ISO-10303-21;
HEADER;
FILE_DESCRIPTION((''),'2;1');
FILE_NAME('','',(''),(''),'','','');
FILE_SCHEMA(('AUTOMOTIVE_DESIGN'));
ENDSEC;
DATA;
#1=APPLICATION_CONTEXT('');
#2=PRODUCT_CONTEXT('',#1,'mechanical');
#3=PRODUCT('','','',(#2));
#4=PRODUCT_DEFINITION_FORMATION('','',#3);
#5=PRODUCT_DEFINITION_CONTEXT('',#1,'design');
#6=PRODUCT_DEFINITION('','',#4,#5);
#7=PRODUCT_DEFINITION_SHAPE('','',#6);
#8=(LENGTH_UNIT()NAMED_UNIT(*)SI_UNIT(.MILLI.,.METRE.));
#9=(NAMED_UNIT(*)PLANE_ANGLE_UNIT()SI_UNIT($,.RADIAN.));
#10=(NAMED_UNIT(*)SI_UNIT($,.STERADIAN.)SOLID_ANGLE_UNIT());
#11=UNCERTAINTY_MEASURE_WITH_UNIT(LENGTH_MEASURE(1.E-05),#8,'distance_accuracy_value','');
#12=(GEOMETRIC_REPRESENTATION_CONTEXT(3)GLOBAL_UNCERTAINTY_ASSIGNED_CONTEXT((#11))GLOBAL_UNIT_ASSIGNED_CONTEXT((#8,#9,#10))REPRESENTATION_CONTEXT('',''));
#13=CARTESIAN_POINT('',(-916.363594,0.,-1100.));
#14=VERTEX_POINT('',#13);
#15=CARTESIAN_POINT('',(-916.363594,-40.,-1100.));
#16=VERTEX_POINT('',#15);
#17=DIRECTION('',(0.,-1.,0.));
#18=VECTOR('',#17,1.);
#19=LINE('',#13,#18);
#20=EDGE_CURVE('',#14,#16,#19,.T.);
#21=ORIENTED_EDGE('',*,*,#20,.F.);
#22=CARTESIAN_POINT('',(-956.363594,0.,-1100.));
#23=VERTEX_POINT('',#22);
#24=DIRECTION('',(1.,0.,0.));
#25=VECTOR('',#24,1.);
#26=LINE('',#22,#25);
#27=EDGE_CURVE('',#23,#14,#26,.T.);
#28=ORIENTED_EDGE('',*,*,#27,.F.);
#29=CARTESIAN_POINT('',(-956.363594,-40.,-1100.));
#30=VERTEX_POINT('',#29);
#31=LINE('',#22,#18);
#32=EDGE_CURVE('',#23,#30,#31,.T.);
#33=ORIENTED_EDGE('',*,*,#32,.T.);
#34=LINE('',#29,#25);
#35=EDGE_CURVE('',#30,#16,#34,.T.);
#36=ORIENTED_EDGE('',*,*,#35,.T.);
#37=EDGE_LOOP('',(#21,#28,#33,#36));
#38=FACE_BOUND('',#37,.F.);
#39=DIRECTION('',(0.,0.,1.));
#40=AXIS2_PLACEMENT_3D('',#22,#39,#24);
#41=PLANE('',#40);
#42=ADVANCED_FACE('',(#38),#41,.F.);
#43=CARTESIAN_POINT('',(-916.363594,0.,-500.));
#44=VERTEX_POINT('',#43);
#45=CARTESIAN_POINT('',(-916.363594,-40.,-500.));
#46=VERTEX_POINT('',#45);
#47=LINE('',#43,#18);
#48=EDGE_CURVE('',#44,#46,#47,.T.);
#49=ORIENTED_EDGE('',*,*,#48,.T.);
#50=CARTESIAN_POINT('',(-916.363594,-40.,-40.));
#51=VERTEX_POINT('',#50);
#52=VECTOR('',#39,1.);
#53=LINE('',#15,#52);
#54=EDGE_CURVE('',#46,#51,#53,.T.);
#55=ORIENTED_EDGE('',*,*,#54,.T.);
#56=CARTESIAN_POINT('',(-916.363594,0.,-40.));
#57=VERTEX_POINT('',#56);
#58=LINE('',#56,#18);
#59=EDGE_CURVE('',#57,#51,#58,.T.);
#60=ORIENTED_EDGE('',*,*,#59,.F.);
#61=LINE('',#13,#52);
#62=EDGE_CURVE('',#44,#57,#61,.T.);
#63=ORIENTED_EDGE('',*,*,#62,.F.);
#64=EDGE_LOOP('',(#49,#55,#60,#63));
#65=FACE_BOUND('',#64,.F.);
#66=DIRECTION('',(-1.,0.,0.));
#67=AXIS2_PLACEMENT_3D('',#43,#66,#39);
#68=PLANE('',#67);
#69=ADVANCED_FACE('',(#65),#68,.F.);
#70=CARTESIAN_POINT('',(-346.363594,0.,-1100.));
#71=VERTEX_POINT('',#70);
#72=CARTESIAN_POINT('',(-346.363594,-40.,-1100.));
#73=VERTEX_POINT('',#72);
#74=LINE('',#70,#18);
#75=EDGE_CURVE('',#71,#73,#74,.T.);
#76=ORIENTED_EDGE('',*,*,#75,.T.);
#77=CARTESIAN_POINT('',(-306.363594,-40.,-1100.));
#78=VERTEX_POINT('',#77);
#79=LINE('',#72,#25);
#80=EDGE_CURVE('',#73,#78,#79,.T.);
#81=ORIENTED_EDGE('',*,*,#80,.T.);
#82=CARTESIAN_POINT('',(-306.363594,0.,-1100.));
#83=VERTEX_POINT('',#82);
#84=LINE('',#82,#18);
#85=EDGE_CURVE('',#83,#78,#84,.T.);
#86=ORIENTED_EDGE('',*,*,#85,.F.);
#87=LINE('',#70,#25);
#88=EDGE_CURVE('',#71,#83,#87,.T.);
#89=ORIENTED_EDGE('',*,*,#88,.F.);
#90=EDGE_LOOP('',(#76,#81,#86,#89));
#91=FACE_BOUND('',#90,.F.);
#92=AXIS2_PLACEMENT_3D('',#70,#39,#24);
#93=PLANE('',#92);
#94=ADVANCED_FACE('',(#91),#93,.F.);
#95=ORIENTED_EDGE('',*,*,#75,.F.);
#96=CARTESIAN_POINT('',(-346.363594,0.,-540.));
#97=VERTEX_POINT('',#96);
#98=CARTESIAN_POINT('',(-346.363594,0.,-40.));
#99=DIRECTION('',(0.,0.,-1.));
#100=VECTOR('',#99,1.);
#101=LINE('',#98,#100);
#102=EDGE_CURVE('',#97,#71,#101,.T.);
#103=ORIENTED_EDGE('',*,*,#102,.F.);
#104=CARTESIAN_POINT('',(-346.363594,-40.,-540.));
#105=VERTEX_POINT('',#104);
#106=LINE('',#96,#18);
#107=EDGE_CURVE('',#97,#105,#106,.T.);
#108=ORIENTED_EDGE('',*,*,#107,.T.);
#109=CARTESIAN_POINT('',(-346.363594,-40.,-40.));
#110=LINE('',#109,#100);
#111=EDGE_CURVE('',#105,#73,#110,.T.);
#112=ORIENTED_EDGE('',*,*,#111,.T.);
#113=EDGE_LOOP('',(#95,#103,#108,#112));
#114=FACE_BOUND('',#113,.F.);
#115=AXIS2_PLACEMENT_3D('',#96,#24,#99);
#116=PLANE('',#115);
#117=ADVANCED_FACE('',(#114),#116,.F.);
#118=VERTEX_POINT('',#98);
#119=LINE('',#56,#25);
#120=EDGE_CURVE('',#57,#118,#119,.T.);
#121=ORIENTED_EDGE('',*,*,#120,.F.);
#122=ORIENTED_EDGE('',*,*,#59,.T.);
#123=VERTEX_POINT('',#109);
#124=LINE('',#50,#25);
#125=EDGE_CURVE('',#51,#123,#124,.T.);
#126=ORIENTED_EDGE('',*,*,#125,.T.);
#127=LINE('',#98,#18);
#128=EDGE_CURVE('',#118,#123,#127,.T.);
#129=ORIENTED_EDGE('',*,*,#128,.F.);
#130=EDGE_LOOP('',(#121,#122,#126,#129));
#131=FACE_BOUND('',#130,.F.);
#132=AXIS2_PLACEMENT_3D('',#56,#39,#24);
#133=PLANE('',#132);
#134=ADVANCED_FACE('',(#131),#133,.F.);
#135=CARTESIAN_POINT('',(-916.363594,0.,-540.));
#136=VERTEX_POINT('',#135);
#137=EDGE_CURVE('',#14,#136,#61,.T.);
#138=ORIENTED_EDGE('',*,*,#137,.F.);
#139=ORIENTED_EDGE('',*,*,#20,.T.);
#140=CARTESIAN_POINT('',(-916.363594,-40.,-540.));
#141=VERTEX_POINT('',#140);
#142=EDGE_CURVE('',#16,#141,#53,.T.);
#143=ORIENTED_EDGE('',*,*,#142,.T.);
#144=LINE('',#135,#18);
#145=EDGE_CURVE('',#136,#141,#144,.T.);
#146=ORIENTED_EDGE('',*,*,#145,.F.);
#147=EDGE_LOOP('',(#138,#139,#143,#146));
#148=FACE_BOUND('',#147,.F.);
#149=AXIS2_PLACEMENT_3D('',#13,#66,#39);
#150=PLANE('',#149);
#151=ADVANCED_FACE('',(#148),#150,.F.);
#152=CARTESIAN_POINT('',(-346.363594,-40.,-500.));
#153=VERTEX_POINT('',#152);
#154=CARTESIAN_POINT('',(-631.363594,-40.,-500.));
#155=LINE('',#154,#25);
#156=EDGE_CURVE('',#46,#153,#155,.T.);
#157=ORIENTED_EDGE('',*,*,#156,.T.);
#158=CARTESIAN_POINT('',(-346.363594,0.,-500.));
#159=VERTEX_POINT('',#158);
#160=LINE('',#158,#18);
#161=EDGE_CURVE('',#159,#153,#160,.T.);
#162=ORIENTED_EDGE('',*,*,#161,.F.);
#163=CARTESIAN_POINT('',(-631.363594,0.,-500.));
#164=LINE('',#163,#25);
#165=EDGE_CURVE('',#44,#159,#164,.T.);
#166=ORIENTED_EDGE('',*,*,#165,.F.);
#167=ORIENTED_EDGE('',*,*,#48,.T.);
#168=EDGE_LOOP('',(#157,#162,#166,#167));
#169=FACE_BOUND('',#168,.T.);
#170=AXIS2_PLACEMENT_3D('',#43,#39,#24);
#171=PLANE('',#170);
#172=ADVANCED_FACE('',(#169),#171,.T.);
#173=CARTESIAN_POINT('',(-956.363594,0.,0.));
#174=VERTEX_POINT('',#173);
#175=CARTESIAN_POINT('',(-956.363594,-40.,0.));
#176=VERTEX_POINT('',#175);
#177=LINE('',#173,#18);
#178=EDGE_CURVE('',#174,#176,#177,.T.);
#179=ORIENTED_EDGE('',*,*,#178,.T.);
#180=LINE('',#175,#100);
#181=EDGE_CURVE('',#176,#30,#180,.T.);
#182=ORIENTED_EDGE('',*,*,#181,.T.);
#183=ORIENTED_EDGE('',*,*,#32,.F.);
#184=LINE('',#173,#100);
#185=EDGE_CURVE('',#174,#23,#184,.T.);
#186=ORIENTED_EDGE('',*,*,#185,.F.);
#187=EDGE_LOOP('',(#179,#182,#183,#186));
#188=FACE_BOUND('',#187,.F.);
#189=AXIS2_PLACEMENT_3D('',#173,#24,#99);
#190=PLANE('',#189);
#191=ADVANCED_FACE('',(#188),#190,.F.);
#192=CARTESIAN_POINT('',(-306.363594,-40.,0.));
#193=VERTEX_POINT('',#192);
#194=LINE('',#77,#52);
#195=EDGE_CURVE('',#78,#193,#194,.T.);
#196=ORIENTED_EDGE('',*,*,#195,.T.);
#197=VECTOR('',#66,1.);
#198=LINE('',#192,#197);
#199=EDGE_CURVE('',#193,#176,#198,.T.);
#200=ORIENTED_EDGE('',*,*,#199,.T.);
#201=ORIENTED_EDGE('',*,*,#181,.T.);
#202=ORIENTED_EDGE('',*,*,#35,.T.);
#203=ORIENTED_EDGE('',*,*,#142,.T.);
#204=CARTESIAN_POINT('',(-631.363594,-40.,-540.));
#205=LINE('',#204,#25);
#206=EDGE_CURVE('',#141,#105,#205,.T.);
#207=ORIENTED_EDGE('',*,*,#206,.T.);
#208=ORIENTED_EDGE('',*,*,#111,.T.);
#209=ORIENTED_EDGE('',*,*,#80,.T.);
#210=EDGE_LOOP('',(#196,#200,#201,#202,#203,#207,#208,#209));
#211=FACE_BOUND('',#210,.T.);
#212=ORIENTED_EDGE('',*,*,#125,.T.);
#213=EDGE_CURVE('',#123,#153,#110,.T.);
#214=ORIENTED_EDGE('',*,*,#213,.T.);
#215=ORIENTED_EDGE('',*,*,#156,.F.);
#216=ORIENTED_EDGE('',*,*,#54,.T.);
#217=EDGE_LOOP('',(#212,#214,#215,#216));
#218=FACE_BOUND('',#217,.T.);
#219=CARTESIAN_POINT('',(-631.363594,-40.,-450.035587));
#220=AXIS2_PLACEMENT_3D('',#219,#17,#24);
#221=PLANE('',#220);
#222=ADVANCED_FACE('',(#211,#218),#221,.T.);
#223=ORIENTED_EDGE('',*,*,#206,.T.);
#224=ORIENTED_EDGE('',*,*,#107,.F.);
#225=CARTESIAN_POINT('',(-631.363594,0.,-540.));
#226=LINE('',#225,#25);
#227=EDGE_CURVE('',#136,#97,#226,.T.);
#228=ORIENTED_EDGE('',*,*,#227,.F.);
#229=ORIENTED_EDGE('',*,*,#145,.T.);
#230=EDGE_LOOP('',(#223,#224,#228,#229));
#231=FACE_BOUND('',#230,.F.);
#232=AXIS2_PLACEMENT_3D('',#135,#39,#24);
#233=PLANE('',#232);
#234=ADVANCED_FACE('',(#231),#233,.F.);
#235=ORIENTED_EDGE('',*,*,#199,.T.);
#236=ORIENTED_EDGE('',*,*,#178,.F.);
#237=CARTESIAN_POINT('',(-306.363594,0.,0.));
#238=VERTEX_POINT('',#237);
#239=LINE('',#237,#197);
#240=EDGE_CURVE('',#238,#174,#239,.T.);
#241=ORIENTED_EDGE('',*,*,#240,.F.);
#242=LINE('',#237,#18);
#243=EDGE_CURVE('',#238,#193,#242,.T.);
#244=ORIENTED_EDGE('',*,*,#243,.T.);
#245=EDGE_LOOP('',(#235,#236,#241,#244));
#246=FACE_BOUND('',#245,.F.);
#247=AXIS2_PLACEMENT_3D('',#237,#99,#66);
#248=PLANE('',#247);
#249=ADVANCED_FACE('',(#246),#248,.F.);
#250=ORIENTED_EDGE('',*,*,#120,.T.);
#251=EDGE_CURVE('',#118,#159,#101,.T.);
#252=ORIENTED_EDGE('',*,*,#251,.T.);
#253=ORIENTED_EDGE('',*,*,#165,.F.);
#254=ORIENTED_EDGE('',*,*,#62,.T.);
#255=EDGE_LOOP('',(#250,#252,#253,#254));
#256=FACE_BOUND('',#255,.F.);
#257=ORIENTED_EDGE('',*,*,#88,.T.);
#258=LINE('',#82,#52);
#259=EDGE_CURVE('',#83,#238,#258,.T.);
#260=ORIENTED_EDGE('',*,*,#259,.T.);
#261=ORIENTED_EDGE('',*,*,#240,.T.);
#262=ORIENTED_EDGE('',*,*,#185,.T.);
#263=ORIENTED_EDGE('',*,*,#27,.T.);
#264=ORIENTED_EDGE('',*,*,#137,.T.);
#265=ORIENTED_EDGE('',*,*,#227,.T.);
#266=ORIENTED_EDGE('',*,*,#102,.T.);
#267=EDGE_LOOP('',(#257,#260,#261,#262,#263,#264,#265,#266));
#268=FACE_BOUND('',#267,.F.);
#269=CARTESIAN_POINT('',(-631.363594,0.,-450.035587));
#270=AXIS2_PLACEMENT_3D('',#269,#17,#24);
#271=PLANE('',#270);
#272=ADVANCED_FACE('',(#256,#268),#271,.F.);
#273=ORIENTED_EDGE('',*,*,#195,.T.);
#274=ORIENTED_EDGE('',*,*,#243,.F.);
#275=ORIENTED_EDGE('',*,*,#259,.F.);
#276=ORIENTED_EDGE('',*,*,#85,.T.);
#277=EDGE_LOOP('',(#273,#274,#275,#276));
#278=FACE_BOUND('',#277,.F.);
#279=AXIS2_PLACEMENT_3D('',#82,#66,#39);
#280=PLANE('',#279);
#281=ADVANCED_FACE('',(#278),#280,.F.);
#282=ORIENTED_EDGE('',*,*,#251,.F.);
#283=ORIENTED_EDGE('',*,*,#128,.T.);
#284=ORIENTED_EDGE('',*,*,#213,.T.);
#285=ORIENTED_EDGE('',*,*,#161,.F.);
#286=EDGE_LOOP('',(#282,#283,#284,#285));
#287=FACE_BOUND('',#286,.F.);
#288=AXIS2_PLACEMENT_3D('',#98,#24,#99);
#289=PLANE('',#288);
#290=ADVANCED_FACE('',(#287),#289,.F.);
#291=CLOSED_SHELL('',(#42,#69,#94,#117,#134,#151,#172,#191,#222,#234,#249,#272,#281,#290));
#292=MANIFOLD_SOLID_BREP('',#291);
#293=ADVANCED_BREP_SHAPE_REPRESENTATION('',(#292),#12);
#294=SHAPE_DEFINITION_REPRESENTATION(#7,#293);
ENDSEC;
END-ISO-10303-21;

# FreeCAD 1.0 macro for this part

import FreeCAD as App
import Part
import Sketcher
from FreeCAD import Vector
Q = App.Units.Quantity

doc = App.newDocument("Part")
body = doc.addObject("PartDesign::Body", "Body")

sketch1 = body.newObject("Sketcher::SketchObject", "Sketch")
sketch1.AttachmentSupport = (doc.getObject("XZ_Plane"), [""])
sketch1.MapMode = "FlatFace"
sketch1.addGeometry([
    Part.LineSegment(Vector(-956, 0, 0), Vector(-956, -1100, 0)),
    Part.LineSegment(Vector(-956, -1100, 0), Vector(-916, -1100, 0)),
    Part.LineSegment(Vector(-916, -1100, 0), Vector(-916, -540, 0)),
    Part.LineSegment(Vector(-916, -540, 0), Vector(-346, -540, 0)),
    Part.LineSegment(Vector(-346, -540, 0), Vector(-346, -1100, 0)),
    Part.LineSegment(Vector(-346, -1100, 0), Vector(-306, -1100, 0)),
    Part.LineSegment(Vector(-306, -1100, 0), Vector(-306, 0, 0)),
    Part.LineSegment(Vector(-306, 0, 0), Vector(-956, 0, 0)),
    Part.LineSegment(Vector(-916, -500, 0), Vector(-916, -40, 0)),
    Part.LineSegment(Vector(-916, -40, 0), Vector(-346, -40, 0)),
    Part.LineSegment(Vector(-346, -40, 0), Vector(-346, -500, 0)),
    Part.LineSegment(Vector(-346, -500, 0), Vector(-916, -500, 0)),
], False)
sketch1.addConstraint([
    Sketcher.Constraint("Coincident", 0, 2, 1, 1),
    Sketcher.Constraint("Coincident", 1, 2, 2, 1),
    Sketcher.Constraint("Coincident", 2, 2, 3, 1),
    Sketcher.Constraint("Coincident", 3, 2, 4, 1),
    Sketcher.Constraint("Coincident", 4, 2, 5, 1),
    Sketcher.Constraint("Coincident", 5, 2, 6, 1),
    Sketcher.Constraint("Coincident", 6, 2, 7, 1),
    Sketcher.Constraint("Coincident", 7, 2, 0, 1),
    Sketcher.Constraint("Coincident", 8, 2, 9, 1),
    Sketcher.Constraint("Coincident", 9, 2, 10, 1),
    Sketcher.Constraint("Coincident", 10, 2, 11, 1),
    Sketcher.Constraint("Coincident", 11, 2, 8, 1),
    Sketcher.Constraint("Vertical", 0),
    Sketcher.Constraint("Horizontal", 1),
    Sketcher.Constraint("Vertical", 2),
    Sketcher.Constraint("Horizontal", 3),
    Sketcher.Constraint("Vertical", 4),
    Sketcher.Constraint("Horizontal", 5),
    Sketcher.Constraint("Vertical", 6),
    Sketcher.Constraint("Horizontal", 7),
    Sketcher.Constraint("Vertical", 8),
    Sketcher.Constraint("Horizontal", 9),
    Sketcher.Constraint("Vertical", 10),
    Sketcher.Constraint("Horizontal", 11),
    Sketcher.Constraint("PointOnObject", 6, 2, -1),
    Sketcher.Constraint("Horizontal", 1, 2, 4, 2),
    Sketcher.Constraint("Vertical", 2, 2, 8, 2),
    Sketcher.Constraint("Vertical", 4, 2, 9, 2),
    Sketcher.Constraint("Equal", 1, 5),
    Sketcher.Constraint("DistanceX", 1, 1, 1, 2, Q("40 mm")),
    Sketcher.Constraint("DistanceX", 3, 1, 3, 2, Q("570 mm")),
    Sketcher.Constraint("DistanceY", 0, 2, 0, 1, Q("1100 mm")),
    Sketcher.Constraint("DistanceY", 2, 1, 2, 2, Q("560 mm")),
    Sketcher.Constraint("DistanceY", 8, 1, 8, 2, Q("460 mm")),
    Sketcher.Constraint("DistanceY", 8, 2, -1, 1, Q("40 mm")),
    Sketcher.Constraint("DistanceX", 0, 2, -1, 1, Q("956.363594 mm")),
])
pad1 = body.newObject("PartDesign::Pad", "Pad")
pad1.Profile = sketch1
pad1.Length = 40

doc.recompute()
